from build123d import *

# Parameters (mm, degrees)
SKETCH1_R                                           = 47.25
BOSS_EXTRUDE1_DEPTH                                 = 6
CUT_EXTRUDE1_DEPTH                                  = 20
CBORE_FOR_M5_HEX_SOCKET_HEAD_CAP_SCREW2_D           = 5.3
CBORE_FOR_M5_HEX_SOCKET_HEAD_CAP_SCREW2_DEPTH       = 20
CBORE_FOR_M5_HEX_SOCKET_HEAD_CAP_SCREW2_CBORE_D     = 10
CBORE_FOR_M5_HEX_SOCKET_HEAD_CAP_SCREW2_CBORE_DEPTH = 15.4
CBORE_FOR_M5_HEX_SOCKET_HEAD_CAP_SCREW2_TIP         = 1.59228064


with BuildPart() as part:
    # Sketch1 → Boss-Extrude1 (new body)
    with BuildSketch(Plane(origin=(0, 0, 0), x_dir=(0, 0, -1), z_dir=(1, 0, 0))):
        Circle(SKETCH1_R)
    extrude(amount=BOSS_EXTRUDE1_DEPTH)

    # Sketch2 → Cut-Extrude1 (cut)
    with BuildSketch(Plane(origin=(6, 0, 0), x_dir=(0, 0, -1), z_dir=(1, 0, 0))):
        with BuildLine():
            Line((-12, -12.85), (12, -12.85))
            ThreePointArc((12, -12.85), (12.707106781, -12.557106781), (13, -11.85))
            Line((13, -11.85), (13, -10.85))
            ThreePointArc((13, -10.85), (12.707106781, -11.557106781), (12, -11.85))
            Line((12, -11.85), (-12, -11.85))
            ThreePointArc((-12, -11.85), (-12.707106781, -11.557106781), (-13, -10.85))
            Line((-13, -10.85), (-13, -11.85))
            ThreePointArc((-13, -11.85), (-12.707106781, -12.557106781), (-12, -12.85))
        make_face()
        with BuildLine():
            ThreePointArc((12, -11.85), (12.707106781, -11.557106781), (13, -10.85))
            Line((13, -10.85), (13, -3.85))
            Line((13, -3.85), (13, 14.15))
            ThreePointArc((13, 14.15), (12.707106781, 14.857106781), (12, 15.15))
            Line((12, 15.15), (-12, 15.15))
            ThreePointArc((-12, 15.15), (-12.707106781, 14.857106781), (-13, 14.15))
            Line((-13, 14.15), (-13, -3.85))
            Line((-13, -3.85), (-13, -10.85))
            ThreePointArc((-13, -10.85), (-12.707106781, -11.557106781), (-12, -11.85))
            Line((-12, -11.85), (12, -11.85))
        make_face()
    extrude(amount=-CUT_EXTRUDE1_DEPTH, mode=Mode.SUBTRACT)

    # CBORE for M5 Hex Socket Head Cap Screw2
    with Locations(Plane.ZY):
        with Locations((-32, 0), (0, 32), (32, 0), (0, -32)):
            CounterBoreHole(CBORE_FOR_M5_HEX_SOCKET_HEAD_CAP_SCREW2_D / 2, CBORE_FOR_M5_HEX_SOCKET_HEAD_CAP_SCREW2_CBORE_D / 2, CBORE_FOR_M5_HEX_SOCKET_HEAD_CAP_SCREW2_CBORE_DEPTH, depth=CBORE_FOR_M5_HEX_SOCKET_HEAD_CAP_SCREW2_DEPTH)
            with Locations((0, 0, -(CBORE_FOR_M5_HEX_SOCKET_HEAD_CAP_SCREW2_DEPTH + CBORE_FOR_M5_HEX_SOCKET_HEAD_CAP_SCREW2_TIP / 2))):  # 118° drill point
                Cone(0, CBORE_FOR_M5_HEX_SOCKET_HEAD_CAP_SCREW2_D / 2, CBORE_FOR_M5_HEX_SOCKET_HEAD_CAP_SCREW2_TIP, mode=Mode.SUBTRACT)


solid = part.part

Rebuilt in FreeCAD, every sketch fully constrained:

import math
import FreeCAD as App
import Part
import Sketcher

V = App.Vector

doc = App.newDocument("Part")
body = doc.addObject("PartDesign::Body", "Body")

sketch1 = body.newObject("Sketcher::SketchObject", "Sketch")
sketch1.AttachmentSupport = (doc.getObject("YZ_Plane"), [""])
sketch1.MapMode = "FlatFace"
sketch1.addGeometry(Part.Circle(V(0, 0, 0), V(0, 0, 1), 47.25), False)
sketch1.addConstraint([
    Sketcher.Constraint("Coincident", 0, 3, -1, 1),
    Sketcher.Constraint("Diameter", 0, 94.5),
])
pad1 = body.newObject("PartDesign::Pad", "Pad")
pad1.Profile = sketch1
pad1.Length = 6

sketch2 = body.newObject("Sketcher::SketchObject", "Sketch001")
sketch2.AttachmentSupport = (doc.getObject("YZ_Plane"), [""])
sketch2.MapMode = "FlatFace"
sketch2.AttachmentOffset = App.Placement(V(0, 0, 6), App.Rotation())
sketch2.addGeometry([
    Part.LineSegment(V(-12.85, 12, 0), V(-12.85, -12, 0)),
    Part.ArcOfCircle(Part.Circle(V(-11.85, -12, 0), V(0, 0, 1), 1), math.radians(-180), math.radians(-90)),
    Part.LineSegment(V(-11.85, -13, 0), V(14.15, -13, 0)),
    Part.ArcOfCircle(Part.Circle(V(14.15, -12, 0), V(0, 0, 1), 1), math.radians(-90), math.radians(0)),
    Part.LineSegment(V(15.15, -12, 0), V(15.15, 12, 0)),
    Part.ArcOfCircle(Part.Circle(V(14.15, 12, 0), V(0, 0, 1), 1), math.radians(0), math.radians(90)),
    Part.LineSegment(V(14.15, 13, 0), V(-11.85, 13, 0)),
    Part.ArcOfCircle(Part.Circle(V(-11.85, 12, 0), V(0, 0, 1), 1), math.radians(90), math.radians(180)),
], False)
sketch2.addConstraint([
    Sketcher.Constraint("Tangent", 0, 2, 1, 1),
    Sketcher.Constraint("Tangent", 1, 2, 2, 1),
    Sketcher.Constraint("Tangent", 2, 2, 3, 1),
    Sketcher.Constraint("Tangent", 3, 2, 4, 1),
    Sketcher.Constraint("Tangent", 4, 2, 5, 1),
    Sketcher.Constraint("Tangent", 5, 2, 6, 1),
    Sketcher.Constraint("Tangent", 6, 2, 7, 1),
    Sketcher.Constraint("Tangent", 7, 2, 0, 1),
    Sketcher.Constraint("Vertical", 0),
    Sketcher.Constraint("Horizontal", 2),
    Sketcher.Constraint("Vertical", 4),
    Sketcher.Constraint("Horizontal", 6),
    Sketcher.Constraint("Equal", 1, 3),
    Sketcher.Constraint("Equal", 3, 5),
    Sketcher.Constraint("Equal", 5, 7),
    Sketcher.Constraint("Radius", 1, 1.0),
    Sketcher.Constraint("DistanceX", 2, 1, 2, 2, 26.0),
    Sketcher.Constraint("DistanceY", 0, 2, 0, 1, 24.0),
    Sketcher.Constraint("DistanceY", 1, 3, -1, 1, 12.0),
    Sketcher.Constraint("DistanceX", 1, 3, -1, 1, 11.85),
])
pocket1 = body.newObject("PartDesign::Pocket", "Pocket")
pocket1.Profile = sketch2
pocket1.Length = 20

sketch3 = body.newObject("Sketcher::SketchObject", "Sketch002")
sketch3.AttachmentSupport = (doc.getObject("YZ_Plane"), [""])
sketch3.MapMode = "FlatFace"
sketch3.addGeometry([
    Part.Circle(V(0, -32, 0), V(0, 0, 1), 2.65),
    Part.Circle(V(32, 0, 0), V(0, 0, 1), 2.65),
    Part.Circle(V(0, 32, 0), V(0, 0, 1), 2.65),
    Part.Circle(V(-32, 0, 0), V(0, 0, 1), 2.65),
], False)
sketch3.addConstraint([
    Sketcher.Constraint("Equal", 0, 1),
    Sketcher.Constraint("Equal", 1, 2),
    Sketcher.Constraint("Equal", 2, 3),
    Sketcher.Constraint("Symmetric", 0, 3, 2, 3, -1, 1),
    Sketcher.Constraint("Symmetric", 1, 3, 3, 3, -1, 1),
    Sketcher.Constraint("PointOnObject", 0, 3, -2),
    Sketcher.Constraint("PointOnObject", 1, 3, -1),
    Sketcher.Constraint("Diameter", 0, 5.3),
    Sketcher.Constraint("DistanceY", 0, 3, -1, 1, 32.0),
    Sketcher.Constraint("DistanceX", -1, 1, 1, 3, 32.0),
])
doc.recompute()
hole = body.newObject("PartDesign::Hole", "Hole")
hole.Profile = sketch3
hole.ThreadType = "None"
hole.Diameter = 5.3
hole.DepthType = "Dimension"
hole.Depth = 20
hole.DrillPoint = "Angled"
hole.DrillPointAngle = 118
hole.HoleCutType = "Counterbore"
hole.HoleCutDiameter = 10
hole.HoleCutDepth = 15.4
hole.Reversed = True

doc.recompute()
